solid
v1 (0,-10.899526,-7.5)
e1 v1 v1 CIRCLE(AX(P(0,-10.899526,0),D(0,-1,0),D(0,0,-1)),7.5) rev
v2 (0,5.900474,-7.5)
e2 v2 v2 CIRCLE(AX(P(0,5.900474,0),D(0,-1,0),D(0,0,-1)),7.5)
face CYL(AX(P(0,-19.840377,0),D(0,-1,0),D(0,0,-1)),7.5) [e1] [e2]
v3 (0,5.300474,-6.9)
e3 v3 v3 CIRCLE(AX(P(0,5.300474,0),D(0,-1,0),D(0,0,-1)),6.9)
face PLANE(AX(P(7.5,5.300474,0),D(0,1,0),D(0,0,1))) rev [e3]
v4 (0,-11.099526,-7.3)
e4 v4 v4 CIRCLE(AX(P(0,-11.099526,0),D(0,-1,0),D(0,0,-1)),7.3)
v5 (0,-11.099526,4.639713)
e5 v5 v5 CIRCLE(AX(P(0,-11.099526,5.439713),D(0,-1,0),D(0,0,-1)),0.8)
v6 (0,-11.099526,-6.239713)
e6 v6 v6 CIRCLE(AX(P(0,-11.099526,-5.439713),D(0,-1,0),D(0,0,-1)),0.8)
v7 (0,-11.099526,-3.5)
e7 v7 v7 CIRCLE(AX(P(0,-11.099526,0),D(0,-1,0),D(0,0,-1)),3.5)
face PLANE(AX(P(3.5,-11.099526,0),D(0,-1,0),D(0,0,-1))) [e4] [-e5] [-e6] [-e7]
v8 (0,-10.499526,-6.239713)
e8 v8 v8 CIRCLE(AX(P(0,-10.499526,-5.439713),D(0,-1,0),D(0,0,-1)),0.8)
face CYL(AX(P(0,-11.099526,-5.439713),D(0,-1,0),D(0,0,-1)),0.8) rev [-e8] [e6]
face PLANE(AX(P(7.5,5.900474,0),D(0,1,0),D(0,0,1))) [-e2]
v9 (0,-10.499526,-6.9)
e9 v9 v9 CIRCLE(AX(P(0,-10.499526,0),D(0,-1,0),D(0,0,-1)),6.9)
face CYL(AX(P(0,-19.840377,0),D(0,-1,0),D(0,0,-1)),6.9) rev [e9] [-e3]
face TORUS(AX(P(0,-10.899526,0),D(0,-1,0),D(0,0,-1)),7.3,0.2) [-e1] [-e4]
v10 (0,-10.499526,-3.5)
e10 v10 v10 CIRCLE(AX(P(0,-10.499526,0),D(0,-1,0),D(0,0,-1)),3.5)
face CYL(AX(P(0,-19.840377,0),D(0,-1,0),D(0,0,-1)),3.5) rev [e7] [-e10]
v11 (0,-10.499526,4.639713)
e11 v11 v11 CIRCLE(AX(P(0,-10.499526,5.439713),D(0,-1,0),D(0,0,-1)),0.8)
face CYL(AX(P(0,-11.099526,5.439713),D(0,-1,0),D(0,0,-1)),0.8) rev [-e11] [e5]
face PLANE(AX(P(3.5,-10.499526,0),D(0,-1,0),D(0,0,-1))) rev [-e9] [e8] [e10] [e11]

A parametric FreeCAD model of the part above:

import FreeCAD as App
import Part
import Sketcher
from FreeCAD import Vector
Q = App.Units.Quantity


def edges_at(feature, points):
    """Names of the edges that pass closest to the given points."""
    edges = feature.Shape.Edges
    near = lambda p: min(range(len(edges)), key=lambda i: edges[i].distToShape(Part.Vertex(*p))[0])
    return sorted({f"Edge{near(p) + 1}" for p in points})

doc = App.newDocument("Part")
body = doc.addObject("PartDesign::Body", "Body")

sketch1 = doc.addObject("Sketcher::SketchObject", "Sketch")
body.addObject(sketch1)
sketch1.AttachmentSupport = (doc.XY_Plane, [""])
sketch1.MapMode = "FlatFace"
sketch1.addGeometry([
    Part.LineSegment(Vector(3.5, -11.1, 0), Vector(7.5, -11.1, 0)),
    Part.LineSegment(Vector(7.5, -11.1, 0), Vector(7.5, 5.9, 0)),
    Part.LineSegment(Vector(7.5, 5.9, 0), Vector(0, 5.9, 0)),
    Part.LineSegment(Vector(0, 5.9, 0), Vector(0, 5.3, 0)),
    Part.LineSegment(Vector(0, 5.3, 0), Vector(6.9, 5.3, 0)),
    Part.LineSegment(Vector(6.9, 5.3, 0), Vector(6.9, -10.5, 0)),
    Part.LineSegment(Vector(6.9, -10.5, 0), Vector(3.5, -10.5, 0)),
    Part.LineSegment(Vector(3.5, -10.5, 0), Vector(3.5, -11.1, 0)),
], False)
sketch1.addConstraint([
    Sketcher.Constraint("Coincident", 0, 2, 1, 1),
    Sketcher.Constraint("Coincident", 1, 2, 2, 1),
    Sketcher.Constraint("Coincident", 2, 2, 3, 1),
    Sketcher.Constraint("Coincident", 3, 2, 4, 1),
    Sketcher.Constraint("Coincident", 4, 2, 5, 1),
    Sketcher.Constraint("Coincident", 5, 2, 6, 1),
    Sketcher.Constraint("Coincident", 6, 2, 7, 1),
    Sketcher.Constraint("Coincident", 7, 2, 0, 1),
    Sketcher.Constraint("Horizontal", 0),
    Sketcher.Constraint("Vertical", 1),
    Sketcher.Constraint("Horizontal", 2),
    Sketcher.Constraint("Vertical", 3),
    Sketcher.Constraint("Horizontal", 4),
    Sketcher.Constraint("Vertical", 5),
    Sketcher.Constraint("Horizontal", 6),
    Sketcher.Constraint("Vertical", 7),
    Sketcher.Constraint("PointOnObject", 2, 2, -2),
    Sketcher.Constraint("Equal", 3, 7),
    Sketcher.Constraint("DistanceX", 0, 1, 0, 2, 4.0),
    Sketcher.Constraint("DistanceY", 1, 1, 1, 2, 17.0),
    Sketcher.Constraint("DistanceX", 2, 2, 2, 1, 7.5),
    Sketcher.Constraint("DistanceX", 4, 1, 4, 2, 6.9),
    Sketcher.Constraint("DistanceY", 3, 2, 3, 1, 0.6),
    Sketcher.Constraint("DistanceY", 0, 2, -1, 1, 11.099526),
])
revolution = doc.addObject("PartDesign::Revolution", "Revolution")
body.addObject(revolution)
revolution.Profile = sketch1
revolution.ReferenceAxis = (sketch1, ["V_Axis"])
revolution.Angle = 360

sketch2 = doc.addObject("Sketcher::SketchObject", "Sketch001")
body.addObject(sketch2)
sketch2.AttachmentSupport = (doc.YZ_Plane, [""])
sketch2.MapMode = "FlatFace"
sketch2.addGeometry([
    Part.LineSegment(Vector(-8.6, -5.4, 0), Vector(-11.1, -5.4, 0)),
    Part.LineSegment(Vector(-11.1, -5.4, 0), Vector(-11.1, -6.2, 0)),
    Part.LineSegment(Vector(-11.1, -6.2, 0), Vector(-9.1, -6.2, 0)),
    Part.LineSegment(Vector(-9.1, -6.2, 0), Vector(-8.6, -5.4, 0)),
], False)
sketch2.addGeometry(Part.LineSegment(Vector(-11.1, -5.4, 0), Vector(-8.6, -5.4, 0)), True)
sketch2.addConstraint([
    Sketcher.Constraint("Coincident", 0, 2, 1, 1),
    Sketcher.Constraint("Coincident", 1, 2, 2, 1),
    Sketcher.Constraint("Coincident", 2, 2, 3, 1),
    Sketcher.Constraint("Coincident", 3, 2, 0, 1),
    Sketcher.Constraint("Horizontal", 0),
    Sketcher.Constraint("Vertical", 1),
    Sketcher.Constraint("Horizontal", 2),
    Sketcher.Constraint("Horizontal", 4),
    Sketcher.Constraint("Coincident", 4, 1, 0, 2),
    Sketcher.Constraint("Equal", 0, 4),
    Sketcher.Constraint("DistanceX", 2, 1, 2, 2, 2.0),
    Sketcher.Constraint("Angle", 3, Q("59 deg")),
    Sketcher.Constraint("DistanceY", 1, 2, 1, 1, 0.8),
    Sketcher.Constraint("DistanceX", 0, 2, -1, 1, 11.099526),
    Sketcher.Constraint("DistanceY", 0, 2, -1, 1, 5.439713),
])
groove = doc.addObject("PartDesign::Groove", "Groove")
body.addObject(groove)
groove.Profile = sketch2
groove.ReferenceAxis = (sketch2, ["Axis0"])
groove.Angle = 360
doc.recompute()

mirrored = doc.addObject("PartDesign::Mirrored", "Mirrored")
body.addObject(mirrored)
mirrored.Originals = [groove]
mirrored.MirrorPlane = (doc.XY_Plane, [""])
body.Tip = mirrored
doc.recompute()

fillet = doc.addObject("PartDesign::Fillet", "Fillet")
body.addObject(fillet)
fillet.Base = (mirrored, edges_at(mirrored, [(-7.5, -11.1, 0)]))
fillet.Radius = 0.2

doc.recompute()
